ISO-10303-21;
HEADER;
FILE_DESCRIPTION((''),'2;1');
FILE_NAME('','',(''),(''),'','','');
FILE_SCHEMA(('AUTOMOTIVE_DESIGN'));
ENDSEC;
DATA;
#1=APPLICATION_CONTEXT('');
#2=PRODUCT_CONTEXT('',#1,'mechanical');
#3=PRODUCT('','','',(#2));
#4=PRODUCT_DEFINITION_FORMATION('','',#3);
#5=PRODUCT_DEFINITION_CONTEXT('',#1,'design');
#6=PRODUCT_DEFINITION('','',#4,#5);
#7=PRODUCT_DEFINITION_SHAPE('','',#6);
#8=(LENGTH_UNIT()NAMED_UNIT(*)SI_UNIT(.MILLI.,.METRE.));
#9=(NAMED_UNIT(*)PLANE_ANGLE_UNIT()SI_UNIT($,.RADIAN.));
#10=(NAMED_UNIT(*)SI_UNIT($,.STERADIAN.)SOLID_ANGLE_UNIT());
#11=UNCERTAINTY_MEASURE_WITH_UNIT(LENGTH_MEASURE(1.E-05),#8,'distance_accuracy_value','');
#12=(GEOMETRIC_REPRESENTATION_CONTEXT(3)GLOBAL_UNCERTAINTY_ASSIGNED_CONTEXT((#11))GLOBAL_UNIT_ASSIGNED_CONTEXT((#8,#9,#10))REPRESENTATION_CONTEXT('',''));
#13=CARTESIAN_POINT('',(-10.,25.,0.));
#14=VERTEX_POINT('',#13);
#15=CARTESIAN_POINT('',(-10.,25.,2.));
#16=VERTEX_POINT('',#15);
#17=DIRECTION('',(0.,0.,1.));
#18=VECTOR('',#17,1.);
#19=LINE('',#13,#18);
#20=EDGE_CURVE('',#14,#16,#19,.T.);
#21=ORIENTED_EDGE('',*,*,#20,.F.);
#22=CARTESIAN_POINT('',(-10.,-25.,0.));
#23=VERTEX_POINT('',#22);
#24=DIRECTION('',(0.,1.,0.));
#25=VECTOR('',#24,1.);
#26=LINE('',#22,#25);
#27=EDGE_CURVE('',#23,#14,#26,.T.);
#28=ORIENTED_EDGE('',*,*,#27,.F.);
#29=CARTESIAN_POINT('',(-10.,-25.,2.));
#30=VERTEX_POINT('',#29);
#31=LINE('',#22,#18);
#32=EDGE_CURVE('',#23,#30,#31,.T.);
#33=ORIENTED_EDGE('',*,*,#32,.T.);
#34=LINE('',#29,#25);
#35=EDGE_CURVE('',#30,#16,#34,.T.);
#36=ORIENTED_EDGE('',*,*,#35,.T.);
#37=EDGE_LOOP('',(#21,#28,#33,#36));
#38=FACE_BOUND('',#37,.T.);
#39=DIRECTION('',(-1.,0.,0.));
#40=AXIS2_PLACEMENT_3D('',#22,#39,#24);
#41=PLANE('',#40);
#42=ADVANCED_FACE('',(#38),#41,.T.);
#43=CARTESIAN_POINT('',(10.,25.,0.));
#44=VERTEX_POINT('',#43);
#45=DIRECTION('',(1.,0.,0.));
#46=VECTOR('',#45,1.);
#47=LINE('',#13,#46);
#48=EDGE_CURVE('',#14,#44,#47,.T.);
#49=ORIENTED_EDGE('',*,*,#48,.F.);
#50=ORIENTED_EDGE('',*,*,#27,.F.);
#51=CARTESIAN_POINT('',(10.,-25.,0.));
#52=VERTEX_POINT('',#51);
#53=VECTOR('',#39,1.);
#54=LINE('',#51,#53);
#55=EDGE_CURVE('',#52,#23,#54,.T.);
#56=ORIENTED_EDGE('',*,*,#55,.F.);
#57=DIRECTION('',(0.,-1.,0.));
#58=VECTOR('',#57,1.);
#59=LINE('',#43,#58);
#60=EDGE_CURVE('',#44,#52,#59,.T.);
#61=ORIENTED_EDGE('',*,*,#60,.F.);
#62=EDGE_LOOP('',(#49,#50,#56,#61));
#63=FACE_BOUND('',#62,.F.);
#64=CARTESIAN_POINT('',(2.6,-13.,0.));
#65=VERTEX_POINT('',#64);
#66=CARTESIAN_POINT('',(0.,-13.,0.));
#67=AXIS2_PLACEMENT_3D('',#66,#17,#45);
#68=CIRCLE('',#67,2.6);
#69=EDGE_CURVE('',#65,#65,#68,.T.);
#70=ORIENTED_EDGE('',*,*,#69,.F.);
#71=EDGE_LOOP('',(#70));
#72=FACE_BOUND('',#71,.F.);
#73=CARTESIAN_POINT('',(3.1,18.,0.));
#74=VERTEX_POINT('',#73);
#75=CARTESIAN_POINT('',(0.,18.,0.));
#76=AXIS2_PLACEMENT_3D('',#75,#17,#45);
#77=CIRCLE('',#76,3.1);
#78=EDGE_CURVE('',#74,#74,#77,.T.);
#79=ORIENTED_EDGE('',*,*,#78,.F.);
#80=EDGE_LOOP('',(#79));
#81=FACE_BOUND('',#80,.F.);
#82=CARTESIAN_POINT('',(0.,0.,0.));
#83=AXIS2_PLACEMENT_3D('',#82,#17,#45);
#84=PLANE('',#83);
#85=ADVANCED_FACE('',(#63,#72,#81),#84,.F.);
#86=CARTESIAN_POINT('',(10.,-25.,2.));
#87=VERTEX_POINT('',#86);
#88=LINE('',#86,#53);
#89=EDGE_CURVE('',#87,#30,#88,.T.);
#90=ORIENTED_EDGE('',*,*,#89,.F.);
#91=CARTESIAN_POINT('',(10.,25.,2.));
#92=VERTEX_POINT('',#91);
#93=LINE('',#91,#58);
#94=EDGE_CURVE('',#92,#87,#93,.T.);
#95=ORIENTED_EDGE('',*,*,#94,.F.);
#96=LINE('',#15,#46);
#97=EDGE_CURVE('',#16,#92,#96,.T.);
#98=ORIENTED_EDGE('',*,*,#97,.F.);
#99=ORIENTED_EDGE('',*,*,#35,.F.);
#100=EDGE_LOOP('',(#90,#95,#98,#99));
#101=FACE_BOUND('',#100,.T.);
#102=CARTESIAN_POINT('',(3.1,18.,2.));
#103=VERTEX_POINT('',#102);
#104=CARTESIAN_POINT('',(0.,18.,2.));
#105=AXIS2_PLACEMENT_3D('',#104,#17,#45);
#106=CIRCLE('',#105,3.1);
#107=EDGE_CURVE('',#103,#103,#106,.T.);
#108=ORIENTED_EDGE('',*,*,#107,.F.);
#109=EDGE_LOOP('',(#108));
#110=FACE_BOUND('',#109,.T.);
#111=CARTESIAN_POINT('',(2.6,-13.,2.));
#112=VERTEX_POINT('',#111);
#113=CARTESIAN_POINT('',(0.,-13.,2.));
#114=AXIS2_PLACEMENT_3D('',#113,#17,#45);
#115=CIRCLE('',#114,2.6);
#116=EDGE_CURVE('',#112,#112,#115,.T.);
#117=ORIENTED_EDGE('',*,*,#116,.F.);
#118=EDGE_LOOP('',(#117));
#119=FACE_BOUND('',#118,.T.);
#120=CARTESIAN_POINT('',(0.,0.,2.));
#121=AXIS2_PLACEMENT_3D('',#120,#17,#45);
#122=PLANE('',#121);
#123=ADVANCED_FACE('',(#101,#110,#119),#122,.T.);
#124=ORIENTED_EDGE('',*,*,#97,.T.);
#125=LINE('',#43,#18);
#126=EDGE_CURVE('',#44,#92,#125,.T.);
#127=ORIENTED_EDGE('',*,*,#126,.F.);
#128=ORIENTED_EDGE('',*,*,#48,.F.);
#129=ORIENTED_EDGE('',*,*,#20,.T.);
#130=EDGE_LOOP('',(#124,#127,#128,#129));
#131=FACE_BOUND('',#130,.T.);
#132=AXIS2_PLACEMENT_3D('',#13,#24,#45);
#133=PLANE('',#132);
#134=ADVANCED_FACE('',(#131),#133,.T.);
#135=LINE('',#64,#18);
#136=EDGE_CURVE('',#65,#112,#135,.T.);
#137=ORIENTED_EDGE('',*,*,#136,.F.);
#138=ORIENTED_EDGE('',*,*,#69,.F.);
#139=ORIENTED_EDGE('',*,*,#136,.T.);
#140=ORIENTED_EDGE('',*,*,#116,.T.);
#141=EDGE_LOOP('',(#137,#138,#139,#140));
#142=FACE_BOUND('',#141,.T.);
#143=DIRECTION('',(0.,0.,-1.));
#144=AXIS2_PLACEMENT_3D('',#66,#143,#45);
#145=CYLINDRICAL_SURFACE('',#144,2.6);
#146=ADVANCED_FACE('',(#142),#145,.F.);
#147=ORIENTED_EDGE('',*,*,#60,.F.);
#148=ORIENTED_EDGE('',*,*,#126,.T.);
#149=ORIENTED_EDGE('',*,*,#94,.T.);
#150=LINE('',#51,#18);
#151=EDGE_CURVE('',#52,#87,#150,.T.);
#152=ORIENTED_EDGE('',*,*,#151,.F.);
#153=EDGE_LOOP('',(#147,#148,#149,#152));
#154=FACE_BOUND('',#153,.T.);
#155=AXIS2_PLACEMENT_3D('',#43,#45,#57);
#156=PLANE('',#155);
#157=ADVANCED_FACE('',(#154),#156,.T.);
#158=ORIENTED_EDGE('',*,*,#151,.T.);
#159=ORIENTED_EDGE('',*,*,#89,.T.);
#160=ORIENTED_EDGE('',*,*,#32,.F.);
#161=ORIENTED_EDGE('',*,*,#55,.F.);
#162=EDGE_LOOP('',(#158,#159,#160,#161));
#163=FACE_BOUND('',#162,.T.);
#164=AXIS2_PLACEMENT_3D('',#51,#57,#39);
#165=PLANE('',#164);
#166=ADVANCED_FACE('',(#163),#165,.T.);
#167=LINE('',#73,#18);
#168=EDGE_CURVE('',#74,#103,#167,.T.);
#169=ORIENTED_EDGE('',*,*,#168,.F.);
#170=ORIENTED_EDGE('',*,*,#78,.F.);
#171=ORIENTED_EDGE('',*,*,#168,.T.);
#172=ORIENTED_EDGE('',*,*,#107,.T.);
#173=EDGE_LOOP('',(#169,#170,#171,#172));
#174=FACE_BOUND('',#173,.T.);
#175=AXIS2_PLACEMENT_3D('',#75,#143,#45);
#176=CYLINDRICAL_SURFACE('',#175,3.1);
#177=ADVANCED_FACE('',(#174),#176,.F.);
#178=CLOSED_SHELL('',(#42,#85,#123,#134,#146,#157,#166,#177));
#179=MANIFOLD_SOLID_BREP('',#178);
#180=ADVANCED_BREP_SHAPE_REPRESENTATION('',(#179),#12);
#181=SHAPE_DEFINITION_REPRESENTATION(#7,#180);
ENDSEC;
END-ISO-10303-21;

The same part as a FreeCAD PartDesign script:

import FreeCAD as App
import Part
import Sketcher
Q = App.Units.Quantity

doc = App.newDocument("Part")
params = doc.addObject("Spreadsheet::Sheet", "Params")
for row, (alias, value) in enumerate([
    ("sketch1_diameter", "5.2 mm"),
    ("sketch1_diameter2", "6.2 mm"),
    ("sketch1_width", "20 mm"),
    ("sketch1_height", "50 mm"),
    ("pad1_length", "2 mm"),
], start=1):
    params.set(f"A{row}", alias)
    params.set(f"B{row}", "=" + value)
    params.setAlias(f"B{row}", alias)

body = doc.addObject("PartDesign::Body", "Body")

# Sketch on XY plane
sketch1 = body.newObject("Sketcher::SketchObject", "Sketch")
sketch1.AttachmentSupport = (doc.getObject("XY_Plane"), [""])
sketch1.MapMode = "FlatFace"
sketch1.addGeometry([
    Part.LineSegment(App.Vector(10, 25, 0), App.Vector(-10, 25, 0)),  # 0
    Part.LineSegment(App.Vector(-10, 25, 0), App.Vector(-10, -25, 0)),  # 1
    Part.LineSegment(App.Vector(-10, -25, 0), App.Vector(10, -25, 0)),  # 2
    Part.LineSegment(App.Vector(10, -25, 0), App.Vector(10, 25, 0)),  # 3
    Part.Circle(App.Vector(0, -13, 0), App.Vector(0, 0, 1), 2.6),  # 4
    Part.Circle(App.Vector(0, 18, 0), App.Vector(0, 0, 1), 3.1),  # 5
], False)
sketch1.addConstraint([
    Sketcher.Constraint("Coincident", 0, 2, 1, 1),
    Sketcher.Constraint("Coincident", 1, 2, 2, 1),
    Sketcher.Constraint("Coincident", 2, 2, 3, 1),
    Sketcher.Constraint("Coincident", 3, 2, 0, 1),
    Sketcher.Constraint("Horizontal", 0),
    Sketcher.Constraint("Vertical", 1),
    Sketcher.Constraint("Horizontal", 2),
    Sketcher.Constraint("Vertical", 3),
    Sketcher.Constraint("Symmetric", 0, 2, 2, 2, -1, 1),
    Sketcher.Constraint("PointOnObject", 4, 3, -2),
    Sketcher.Constraint("PointOnObject", 5, 3, -2),
    Sketcher.Constraint("Diameter", 4, Q("5.2 mm")),
    Sketcher.Constraint("Diameter", 5, Q("6.2 mm")),
    Sketcher.Constraint("DistanceX", 0, 2, 0, 1, Q("20 mm")),
    Sketcher.Constraint("DistanceY", 1, 2, 1, 1, Q("50 mm")),
    Sketcher.Constraint("DistanceY", 4, 3, -1, 1, Q("13 mm")),
    Sketcher.Constraint("DistanceY", -1, 1, 5, 3, Q("18 mm")),
])
sketch1.setExpression("Constraints[11]", "Params.sketch1_diameter")
sketch1.setExpression("Constraints[12]", "Params.sketch1_diameter2")
sketch1.setExpression("Constraints[13]", "Params.sketch1_width")
sketch1.setExpression("Constraints[14]", "Params.sketch1_height")
pad1 = body.newObject("PartDesign::Pad", "Pad")
pad1.Profile = sketch1
pad1.setExpression("Length", "Params.pad1_length")

doc.recompute()
